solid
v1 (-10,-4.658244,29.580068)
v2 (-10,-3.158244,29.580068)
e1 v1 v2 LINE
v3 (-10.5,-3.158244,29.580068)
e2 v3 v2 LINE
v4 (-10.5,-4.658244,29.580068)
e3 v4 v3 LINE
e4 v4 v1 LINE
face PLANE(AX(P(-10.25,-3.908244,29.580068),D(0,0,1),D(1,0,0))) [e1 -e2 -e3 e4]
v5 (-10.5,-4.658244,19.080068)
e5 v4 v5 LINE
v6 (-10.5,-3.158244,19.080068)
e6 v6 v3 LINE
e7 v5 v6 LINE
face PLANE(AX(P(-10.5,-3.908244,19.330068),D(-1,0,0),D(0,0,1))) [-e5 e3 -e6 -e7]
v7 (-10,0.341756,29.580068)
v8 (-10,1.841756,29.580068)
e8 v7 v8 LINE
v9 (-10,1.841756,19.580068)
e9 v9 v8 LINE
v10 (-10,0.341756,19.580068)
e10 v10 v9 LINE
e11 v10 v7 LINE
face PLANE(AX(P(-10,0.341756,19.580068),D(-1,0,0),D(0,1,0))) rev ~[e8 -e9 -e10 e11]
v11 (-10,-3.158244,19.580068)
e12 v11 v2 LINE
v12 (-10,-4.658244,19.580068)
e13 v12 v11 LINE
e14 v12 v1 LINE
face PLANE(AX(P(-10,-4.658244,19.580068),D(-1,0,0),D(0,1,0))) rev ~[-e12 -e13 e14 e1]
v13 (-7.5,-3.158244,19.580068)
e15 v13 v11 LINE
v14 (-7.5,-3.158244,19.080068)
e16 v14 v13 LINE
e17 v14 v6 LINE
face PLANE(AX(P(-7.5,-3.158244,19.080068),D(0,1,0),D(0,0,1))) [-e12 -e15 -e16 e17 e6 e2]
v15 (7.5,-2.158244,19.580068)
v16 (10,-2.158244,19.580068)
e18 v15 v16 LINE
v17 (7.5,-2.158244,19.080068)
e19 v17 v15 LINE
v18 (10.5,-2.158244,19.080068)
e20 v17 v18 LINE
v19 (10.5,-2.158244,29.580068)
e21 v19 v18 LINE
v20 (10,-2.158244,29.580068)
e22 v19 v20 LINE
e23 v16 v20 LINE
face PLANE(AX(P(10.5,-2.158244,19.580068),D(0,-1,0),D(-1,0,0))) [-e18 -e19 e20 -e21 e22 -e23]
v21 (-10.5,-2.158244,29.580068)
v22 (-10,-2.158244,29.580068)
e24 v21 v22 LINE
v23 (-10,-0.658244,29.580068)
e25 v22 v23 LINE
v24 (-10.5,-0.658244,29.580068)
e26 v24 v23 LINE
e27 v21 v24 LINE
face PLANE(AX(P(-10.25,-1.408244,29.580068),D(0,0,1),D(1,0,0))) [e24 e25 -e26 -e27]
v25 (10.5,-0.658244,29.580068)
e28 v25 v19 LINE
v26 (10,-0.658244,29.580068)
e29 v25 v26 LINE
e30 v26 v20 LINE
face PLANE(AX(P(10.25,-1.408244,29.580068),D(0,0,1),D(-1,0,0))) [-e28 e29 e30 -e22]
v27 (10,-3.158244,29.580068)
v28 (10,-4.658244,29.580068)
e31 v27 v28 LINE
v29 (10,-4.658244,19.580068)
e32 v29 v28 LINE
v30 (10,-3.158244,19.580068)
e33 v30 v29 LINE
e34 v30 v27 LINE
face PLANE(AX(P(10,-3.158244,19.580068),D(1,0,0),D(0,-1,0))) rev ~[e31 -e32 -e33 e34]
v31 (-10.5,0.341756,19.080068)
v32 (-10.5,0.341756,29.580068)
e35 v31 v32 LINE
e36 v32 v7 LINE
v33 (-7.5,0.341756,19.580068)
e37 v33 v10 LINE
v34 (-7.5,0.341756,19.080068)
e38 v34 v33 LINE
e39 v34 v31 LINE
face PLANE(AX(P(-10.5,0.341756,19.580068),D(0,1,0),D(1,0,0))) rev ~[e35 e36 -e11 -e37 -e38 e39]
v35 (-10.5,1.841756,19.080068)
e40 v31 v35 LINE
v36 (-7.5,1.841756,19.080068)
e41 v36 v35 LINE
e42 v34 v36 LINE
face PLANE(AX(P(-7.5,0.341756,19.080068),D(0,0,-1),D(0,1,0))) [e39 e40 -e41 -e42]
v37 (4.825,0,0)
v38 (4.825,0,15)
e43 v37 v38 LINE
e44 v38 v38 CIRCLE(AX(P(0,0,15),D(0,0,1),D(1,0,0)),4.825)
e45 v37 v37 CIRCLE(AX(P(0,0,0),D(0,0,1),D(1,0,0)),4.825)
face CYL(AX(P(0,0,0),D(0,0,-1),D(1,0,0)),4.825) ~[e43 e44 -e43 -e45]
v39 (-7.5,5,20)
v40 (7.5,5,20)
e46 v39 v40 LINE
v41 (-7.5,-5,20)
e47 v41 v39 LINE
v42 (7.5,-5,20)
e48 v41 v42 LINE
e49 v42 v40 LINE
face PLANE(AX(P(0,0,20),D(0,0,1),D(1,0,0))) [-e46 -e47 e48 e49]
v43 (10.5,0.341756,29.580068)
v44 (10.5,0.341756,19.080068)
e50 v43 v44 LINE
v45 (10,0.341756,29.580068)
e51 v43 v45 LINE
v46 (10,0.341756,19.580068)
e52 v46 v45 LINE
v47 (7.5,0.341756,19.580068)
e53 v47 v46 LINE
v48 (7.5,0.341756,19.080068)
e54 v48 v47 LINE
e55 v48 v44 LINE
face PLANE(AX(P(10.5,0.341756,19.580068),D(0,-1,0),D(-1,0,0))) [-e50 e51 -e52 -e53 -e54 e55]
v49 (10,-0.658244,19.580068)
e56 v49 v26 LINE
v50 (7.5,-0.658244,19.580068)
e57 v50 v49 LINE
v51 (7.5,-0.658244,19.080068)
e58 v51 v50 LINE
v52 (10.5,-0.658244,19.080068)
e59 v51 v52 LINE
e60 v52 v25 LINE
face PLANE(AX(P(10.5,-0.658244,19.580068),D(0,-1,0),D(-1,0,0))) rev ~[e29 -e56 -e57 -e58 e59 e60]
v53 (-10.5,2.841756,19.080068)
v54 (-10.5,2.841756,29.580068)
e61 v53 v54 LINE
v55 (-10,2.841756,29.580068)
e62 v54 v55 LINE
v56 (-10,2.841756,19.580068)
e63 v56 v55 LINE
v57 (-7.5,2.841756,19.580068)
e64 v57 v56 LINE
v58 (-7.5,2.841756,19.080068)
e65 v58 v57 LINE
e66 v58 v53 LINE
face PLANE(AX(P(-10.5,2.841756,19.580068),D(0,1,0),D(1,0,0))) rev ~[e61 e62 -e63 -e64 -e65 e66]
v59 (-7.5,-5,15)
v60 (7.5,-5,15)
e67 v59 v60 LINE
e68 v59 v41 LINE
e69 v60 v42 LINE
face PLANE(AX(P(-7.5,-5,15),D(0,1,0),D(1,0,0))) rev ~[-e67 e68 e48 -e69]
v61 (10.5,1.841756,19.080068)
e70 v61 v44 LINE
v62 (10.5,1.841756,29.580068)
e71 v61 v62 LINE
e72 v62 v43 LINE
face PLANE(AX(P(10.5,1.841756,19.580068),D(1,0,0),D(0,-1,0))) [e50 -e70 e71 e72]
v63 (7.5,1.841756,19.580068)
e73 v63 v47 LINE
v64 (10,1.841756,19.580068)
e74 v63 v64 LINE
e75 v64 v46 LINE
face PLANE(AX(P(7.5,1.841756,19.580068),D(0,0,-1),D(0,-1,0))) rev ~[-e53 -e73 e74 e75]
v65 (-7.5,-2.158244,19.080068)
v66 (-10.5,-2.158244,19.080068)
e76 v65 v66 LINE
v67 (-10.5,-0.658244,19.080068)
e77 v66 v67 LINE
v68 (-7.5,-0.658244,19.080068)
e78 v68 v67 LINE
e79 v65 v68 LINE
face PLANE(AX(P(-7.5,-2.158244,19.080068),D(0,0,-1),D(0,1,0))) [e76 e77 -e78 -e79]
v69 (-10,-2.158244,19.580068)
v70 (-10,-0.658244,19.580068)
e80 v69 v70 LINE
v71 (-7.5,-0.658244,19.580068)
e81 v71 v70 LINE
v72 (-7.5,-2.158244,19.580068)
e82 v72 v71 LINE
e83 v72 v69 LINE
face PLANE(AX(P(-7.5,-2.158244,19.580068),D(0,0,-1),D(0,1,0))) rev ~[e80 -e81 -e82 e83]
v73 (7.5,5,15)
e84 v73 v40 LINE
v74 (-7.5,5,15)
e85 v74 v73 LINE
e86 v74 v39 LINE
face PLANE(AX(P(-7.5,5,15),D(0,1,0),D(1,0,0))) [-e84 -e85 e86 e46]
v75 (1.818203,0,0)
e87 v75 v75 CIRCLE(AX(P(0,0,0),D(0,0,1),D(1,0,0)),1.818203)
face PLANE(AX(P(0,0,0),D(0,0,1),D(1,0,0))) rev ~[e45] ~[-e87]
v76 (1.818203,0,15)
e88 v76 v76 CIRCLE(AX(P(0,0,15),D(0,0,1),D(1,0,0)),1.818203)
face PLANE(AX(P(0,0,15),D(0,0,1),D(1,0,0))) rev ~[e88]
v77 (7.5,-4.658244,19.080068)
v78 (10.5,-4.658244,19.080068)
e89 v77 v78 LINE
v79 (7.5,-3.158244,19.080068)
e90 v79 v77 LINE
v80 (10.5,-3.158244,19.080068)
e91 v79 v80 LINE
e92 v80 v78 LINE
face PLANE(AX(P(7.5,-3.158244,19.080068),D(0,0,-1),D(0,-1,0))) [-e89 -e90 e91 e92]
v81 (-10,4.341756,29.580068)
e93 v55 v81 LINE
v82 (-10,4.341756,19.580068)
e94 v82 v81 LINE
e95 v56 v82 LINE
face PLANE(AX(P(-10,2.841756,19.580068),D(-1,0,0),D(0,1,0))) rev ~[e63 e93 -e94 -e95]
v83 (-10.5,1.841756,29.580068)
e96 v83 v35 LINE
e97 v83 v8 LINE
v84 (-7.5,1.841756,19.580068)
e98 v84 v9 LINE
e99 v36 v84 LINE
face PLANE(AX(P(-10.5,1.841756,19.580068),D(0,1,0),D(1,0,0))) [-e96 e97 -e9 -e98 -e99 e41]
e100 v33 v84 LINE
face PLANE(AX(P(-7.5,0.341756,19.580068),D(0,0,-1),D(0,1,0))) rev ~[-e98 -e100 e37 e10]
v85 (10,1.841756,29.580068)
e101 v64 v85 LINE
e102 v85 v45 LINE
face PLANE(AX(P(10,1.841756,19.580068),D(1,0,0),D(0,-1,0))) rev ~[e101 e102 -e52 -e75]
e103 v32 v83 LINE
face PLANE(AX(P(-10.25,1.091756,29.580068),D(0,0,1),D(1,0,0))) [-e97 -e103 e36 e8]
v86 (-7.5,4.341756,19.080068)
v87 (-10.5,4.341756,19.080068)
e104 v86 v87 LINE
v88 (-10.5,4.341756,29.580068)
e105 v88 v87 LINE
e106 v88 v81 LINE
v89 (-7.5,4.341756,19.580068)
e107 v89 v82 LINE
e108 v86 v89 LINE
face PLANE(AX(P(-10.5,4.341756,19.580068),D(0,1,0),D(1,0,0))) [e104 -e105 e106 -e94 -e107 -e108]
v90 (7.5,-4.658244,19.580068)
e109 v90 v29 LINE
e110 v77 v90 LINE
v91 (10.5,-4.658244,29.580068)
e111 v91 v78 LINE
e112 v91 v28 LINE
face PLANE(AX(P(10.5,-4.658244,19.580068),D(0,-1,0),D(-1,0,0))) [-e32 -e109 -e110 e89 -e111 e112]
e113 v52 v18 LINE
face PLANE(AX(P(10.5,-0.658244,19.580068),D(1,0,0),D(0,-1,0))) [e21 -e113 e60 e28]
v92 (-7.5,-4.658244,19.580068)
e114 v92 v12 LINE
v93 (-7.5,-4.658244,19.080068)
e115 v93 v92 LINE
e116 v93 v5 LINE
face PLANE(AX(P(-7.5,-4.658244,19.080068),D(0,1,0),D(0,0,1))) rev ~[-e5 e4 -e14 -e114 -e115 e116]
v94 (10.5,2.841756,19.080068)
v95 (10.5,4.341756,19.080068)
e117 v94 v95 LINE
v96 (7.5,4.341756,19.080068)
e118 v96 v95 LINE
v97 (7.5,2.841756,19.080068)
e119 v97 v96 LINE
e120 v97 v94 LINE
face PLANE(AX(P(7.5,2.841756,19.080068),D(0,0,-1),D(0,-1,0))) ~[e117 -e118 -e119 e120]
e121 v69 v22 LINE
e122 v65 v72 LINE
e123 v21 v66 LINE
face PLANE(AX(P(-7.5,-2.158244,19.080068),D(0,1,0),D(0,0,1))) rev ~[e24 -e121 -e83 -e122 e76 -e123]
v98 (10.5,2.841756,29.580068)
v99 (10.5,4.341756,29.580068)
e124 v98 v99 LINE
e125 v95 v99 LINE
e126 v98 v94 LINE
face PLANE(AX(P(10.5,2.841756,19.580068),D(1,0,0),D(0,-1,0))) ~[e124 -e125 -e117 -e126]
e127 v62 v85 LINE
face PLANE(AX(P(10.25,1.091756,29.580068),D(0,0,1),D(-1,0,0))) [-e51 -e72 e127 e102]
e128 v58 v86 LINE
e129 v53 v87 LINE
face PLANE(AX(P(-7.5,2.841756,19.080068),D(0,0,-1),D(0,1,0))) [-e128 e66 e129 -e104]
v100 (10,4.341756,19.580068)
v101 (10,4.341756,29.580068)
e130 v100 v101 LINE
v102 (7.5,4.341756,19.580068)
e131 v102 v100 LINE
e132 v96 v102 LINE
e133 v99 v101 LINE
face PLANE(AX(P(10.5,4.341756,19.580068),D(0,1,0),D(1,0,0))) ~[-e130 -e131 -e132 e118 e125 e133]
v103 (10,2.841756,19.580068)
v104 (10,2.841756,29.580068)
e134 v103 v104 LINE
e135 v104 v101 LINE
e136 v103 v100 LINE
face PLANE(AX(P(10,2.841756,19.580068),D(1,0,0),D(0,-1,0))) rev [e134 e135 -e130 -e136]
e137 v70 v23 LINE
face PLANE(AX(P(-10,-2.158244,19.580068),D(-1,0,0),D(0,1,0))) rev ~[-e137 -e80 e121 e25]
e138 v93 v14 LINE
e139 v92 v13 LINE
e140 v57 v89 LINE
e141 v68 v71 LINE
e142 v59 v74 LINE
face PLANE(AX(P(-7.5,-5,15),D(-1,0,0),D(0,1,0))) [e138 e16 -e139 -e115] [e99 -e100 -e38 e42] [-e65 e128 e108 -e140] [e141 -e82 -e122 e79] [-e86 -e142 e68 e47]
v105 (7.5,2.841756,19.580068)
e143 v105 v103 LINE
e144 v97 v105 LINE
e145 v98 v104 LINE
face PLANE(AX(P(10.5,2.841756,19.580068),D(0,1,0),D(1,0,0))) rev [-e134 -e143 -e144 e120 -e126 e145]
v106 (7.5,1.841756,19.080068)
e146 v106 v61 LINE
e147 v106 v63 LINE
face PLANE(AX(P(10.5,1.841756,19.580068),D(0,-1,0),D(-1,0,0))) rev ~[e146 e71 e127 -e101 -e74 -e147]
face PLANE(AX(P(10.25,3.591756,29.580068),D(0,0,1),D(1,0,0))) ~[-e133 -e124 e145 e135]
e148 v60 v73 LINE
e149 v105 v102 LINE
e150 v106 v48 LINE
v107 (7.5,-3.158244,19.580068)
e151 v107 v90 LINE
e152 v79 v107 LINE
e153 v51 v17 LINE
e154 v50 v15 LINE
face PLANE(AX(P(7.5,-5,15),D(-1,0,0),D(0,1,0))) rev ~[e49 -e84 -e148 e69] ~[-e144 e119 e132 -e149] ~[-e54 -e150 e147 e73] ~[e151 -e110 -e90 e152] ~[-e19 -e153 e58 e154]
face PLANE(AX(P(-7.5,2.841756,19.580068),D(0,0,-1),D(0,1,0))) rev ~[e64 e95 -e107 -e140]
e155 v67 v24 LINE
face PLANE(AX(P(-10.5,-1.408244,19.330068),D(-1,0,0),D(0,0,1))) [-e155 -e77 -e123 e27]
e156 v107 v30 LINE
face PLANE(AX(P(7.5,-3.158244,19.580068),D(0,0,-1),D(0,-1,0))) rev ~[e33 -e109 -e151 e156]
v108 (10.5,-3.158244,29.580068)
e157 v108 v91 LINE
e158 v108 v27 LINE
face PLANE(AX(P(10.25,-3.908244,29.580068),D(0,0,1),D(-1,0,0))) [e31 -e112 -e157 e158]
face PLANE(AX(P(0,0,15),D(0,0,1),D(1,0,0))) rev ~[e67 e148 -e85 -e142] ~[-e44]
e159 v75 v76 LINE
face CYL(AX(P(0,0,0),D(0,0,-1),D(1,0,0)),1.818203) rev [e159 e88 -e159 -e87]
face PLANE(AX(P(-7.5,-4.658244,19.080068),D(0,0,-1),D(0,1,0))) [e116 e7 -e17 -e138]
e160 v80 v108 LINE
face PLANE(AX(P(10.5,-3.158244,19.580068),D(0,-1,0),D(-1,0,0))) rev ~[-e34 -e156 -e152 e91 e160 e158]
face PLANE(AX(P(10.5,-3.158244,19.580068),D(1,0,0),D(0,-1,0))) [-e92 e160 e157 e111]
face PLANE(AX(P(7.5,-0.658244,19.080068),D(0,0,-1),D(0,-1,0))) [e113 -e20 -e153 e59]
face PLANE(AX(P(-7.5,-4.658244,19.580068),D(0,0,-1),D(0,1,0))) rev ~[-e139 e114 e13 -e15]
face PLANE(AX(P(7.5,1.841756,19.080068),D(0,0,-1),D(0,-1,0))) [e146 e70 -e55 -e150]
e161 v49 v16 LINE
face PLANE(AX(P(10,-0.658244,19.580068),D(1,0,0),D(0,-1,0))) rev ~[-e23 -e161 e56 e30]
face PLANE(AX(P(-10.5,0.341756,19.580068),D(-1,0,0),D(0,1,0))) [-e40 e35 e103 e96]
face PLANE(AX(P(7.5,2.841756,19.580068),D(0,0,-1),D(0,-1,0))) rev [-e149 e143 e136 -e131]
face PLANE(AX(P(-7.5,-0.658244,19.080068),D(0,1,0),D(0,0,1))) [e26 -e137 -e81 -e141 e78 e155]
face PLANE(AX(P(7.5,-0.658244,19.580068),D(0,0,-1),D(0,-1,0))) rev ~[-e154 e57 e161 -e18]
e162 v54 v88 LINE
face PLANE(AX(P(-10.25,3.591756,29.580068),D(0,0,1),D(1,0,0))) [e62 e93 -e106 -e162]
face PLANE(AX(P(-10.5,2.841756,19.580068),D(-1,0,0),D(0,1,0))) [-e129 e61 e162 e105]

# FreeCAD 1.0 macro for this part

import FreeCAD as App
import Part
import Sketcher
from FreeCAD import Vector


def add_polygon(sketch, points):
    """Adds a closed chain of lines whose ends are joined by coincident constraints."""
    first, n = sketch.GeometryCount, len(points)
    for a, b in zip(points, points[1:] + points[:1]):
        sketch.addGeometry(Part.LineSegment(App.Vector(*a, 0), App.Vector(*b, 0)), False)
    for i in range(n):
        sketch.addConstraint(Sketcher.Constraint("Coincident", first + i, 2, first + (i + 1) % n, 1))

doc = App.newDocument("Part")
body = doc.addObject("PartDesign::Body", "Body")

# Sketch on XY plane
sketch1 = body.newObject("Sketcher::SketchObject", "Sketch")
sketch1.AttachmentSupport = (doc.getObject("XY_Plane"), [""])
sketch1.MapMode = "FlatFace"
sketch1.addGeometry(Part.Circle(Vector(0, 0, 0), Vector(0, 0, 1), 4.8), False)
sketch1.addGeometry(Part.Circle(Vector(0, 0, 0), Vector(0, 0, 1), 1.8), False)
sketch1.addConstraint(Sketcher.Constraint("Coincident", 0, 3, -1, 1))
sketch1.addConstraint(Sketcher.Constraint("Coincident", 1, 3, -1, 1))
sketch1.addConstraint(Sketcher.Constraint("Diameter", 0, 9.65))
sketch1.addConstraint(Sketcher.Constraint("Diameter", 1, 3.636405))
pad1 = body.newObject("PartDesign::Pad", "Pad")
pad1.Profile = sketch1
pad1.Length = 15

# Sketch on XY plane
sketch2 = body.newObject("Sketcher::SketchObject", "Sketch001")
sketch2.AttachmentSupport = (doc.getObject("XY_Plane"), [""])
sketch2.MapMode = "FlatFace"
sketch2.AttachmentOffset = App.Placement(Vector(0, 0, 15), App.Rotation())
add_polygon(sketch2, [(-8, 5), (-8, -5), (8, -5), (8, 5)])  # lines 0-3
sketch2.addConstraint(Sketcher.Constraint("Vertical", 0))
sketch2.addConstraint(Sketcher.Constraint("Horizontal", 1))
sketch2.addConstraint(Sketcher.Constraint("Vertical", 2))
sketch2.addConstraint(Sketcher.Constraint("Horizontal", 3))
sketch2.addConstraint(Sketcher.Constraint("Symmetric", 0, 2, 2, 2, -1, 1))
sketch2.addConstraint(Sketcher.Constraint("DistanceX", 1, 1, 1, 2, 15.0))
sketch2.addConstraint(Sketcher.Constraint("DistanceY", 0, 2, 0, 1, 10.0))
pad2 = body.newObject("PartDesign::Pad", "Pad001")
pad2.Profile = sketch2
pad2.Length = 5

# Sketch on YZ plane
sketch3 = body.newObject("Sketcher::SketchObject", "Sketch002")
sketch3.AttachmentSupport = (doc.getObject("YZ_Plane"), [""])
sketch3.MapMode = "FlatFace"
sketch3.AttachmentOffset = App.Placement(Vector(0, 0, -7.5), App.Rotation())
add_polygon(sketch3, [(4.3, 19.1), (2.8, 19.1), (2.8, 19.6), (4.3, 19.6)])  # lines 0-3
sketch3.addConstraint(Sketcher.Constraint("Horizontal", 0))
sketch3.addConstraint(Sketcher.Constraint("Vertical", 1))
sketch3.addConstraint(Sketcher.Constraint("Horizontal", 2))
sketch3.addConstraint(Sketcher.Constraint("Vertical", 3))
sketch3.addConstraint(Sketcher.Constraint("DistanceX", 0, 2, 0, 1, 1.5))
sketch3.addConstraint(Sketcher.Constraint("DistanceY", 1, 1, 1, 2, 0.5))
sketch3.addConstraint(Sketcher.Constraint("DistanceX", -1, 1, 0, 2, 2.841756))
sketch3.addConstraint(Sketcher.Constraint("DistanceY", -1, 1, 0, 2, 19.080068))
pad3 = body.newObject("PartDesign::Pad", "Pad002")
pad3.Profile = sketch3
pad3.Length = 3
pad3.Reversed = True

# Sketch on XY plane
sketch4 = body.newObject("Sketcher::SketchObject", "Sketch003")
sketch4.AttachmentSupport = (doc.getObject("XY_Plane"), [""])
sketch4.MapMode = "FlatFace"
sketch4.AttachmentOffset = App.Placement(Vector(0, 0, 19.580068), App.Rotation())
add_polygon(sketch4, [(-10.5, 4.3), (-10.5, 2.8), (-10, 2.8), (-10, 4.3)])  # lines 0-3
sketch4.addConstraint(Sketcher.Constraint("Vertical", 0))
sketch4.addConstraint(Sketcher.Constraint("Horizontal", 1))
sketch4.addConstraint(Sketcher.Constraint("Vertical", 2))
sketch4.addConstraint(Sketcher.Constraint("Horizontal", 3))
sketch4.addConstraint(Sketcher.Constraint("DistanceX", 1, 1, 1, 2, 0.5))
sketch4.addConstraint(Sketcher.Constraint("DistanceY", 0, 2, 0, 1, 1.5))
sketch4.addConstraint(Sketcher.Constraint("DistanceX", 1, 2, -1, 1, 10.0))
sketch4.addConstraint(Sketcher.Constraint("DistanceY", -1, 1, 0, 2, 2.841756))
pad4 = body.newObject("PartDesign::Pad", "Pad003")
pad4.Profile = sketch4
pad4.Length = 10
doc.recompute()

linearpattern = body.newObject("PartDesign::LinearPattern", "LinearPattern")
linearpattern.Originals = [pad3, pad4]
linearpattern.Direction = (doc.getObject("Y_Axis"), [""])
linearpattern.Mode = "offset"
linearpattern.Offset = 2.5
linearpattern.Occurrences = 4
linearpattern.Reversed = True
body.Tip = linearpattern
doc.recompute()

mirrored = body.newObject("PartDesign::Mirrored", "Mirrored")
mirrored.Originals = [pad3, pad4]
mirrored.MirrorPlane = (doc.getObject("YZ_Plane"), [""])
body.Tip = mirrored

# Sketch on YZ plane
sketch5 = body.newObject("Sketcher::SketchObject", "Sketch004")
sketch5.AttachmentSupport = (doc.getObject("YZ_Plane"), [""])
sketch5.MapMode = "FlatFace"
sketch5.AttachmentOffset = App.Placement(Vector(0, 0, 7.5), App.Rotation())
add_polygon(sketch5, [(0.3, 19.1), (1.8, 19.1), (1.8, 19.6), (0.3, 19.6)])  # lines 0-3
sketch5.addConstraint(Sketcher.Constraint("Horizontal", 0))
sketch5.addConstraint(Sketcher.Constraint("Vertical", 1))
sketch5.addConstraint(Sketcher.Constraint("Horizontal", 2))
sketch5.addConstraint(Sketcher.Constraint("Vertical", 3))
sketch5.addConstraint(Sketcher.Constraint("DistanceX", 0, 1, 0, 2, 1.5))
sketch5.addConstraint(Sketcher.Constraint("DistanceY", 1, 1, 1, 2, 0.5))
sketch5.addConstraint(Sketcher.Constraint("DistanceX", -1, 1, 0, 2, 1.841756))
sketch5.addConstraint(Sketcher.Constraint("DistanceY", -1, 1, 0, 2, 19.080068))
pad5 = body.newObject("PartDesign::Pad", "Pad004")
pad5.Profile = sketch5
pad5.Length = 3

# Sketch on YZ plane
sketch6 = body.newObject("Sketcher::SketchObject", "Sketch005")
sketch6.AttachmentSupport = (doc.getObject("YZ_Plane"), [""])
sketch6.MapMode = "FlatFace"
sketch6.AttachmentOffset = App.Placement(Vector(0, 0, 7.5), App.Rotation())
add_polygon(sketch6, [(-2.2, 19.1), (-0.7, 19.1), (-0.7, 19.6), (-2.2, 19.6)])  # lines 0-3
sketch6.addConstraint(Sketcher.Constraint("Horizontal", 0))
sketch6.addConstraint(Sketcher.Constraint("Vertical", 1))
sketch6.addConstraint(Sketcher.Constraint("Horizontal", 2))
sketch6.addConstraint(Sketcher.Constraint("Vertical", 3))
sketch6.addConstraint(Sketcher.Constraint("DistanceX", 0, 1, 0, 2, 1.5))
sketch6.addConstraint(Sketcher.Constraint("DistanceY", 1, 1, 1, 2, 0.5))
sketch6.addConstraint(Sketcher.Constraint("DistanceX", 0, 2, -1, 1, 0.658244))
sketch6.addConstraint(Sketcher.Constraint("DistanceY", -1, 1, 0, 2, 19.080068))
pad6 = body.newObject("PartDesign::Pad", "Pad005")
pad6.Profile = sketch6
pad6.Length = 3

# Sketch on YZ plane
sketch7 = body.newObject("Sketcher::SketchObject", "Sketch006")
sketch7.AttachmentSupport = (doc.getObject("YZ_Plane"), [""])
sketch7.MapMode = "FlatFace"
sketch7.AttachmentOffset = App.Placement(Vector(0, 0, 7.5), App.Rotation())
add_polygon(sketch7, [(-4.7, 19.1), (-3.2, 19.1), (-3.2, 19.6), (-4.7, 19.6)])  # lines 0-3
sketch7.addConstraint(Sketcher.Constraint("Horizontal", 0))
sketch7.addConstraint(Sketcher.Constraint("Vertical", 1))
sketch7.addConstraint(Sketcher.Constraint("Horizontal", 2))
sketch7.addConstraint(Sketcher.Constraint("Vertical", 3))
sketch7.addConstraint(Sketcher.Constraint("DistanceX", 0, 1, 0, 2, 1.5))
sketch7.addConstraint(Sketcher.Constraint("DistanceY", 1, 1, 1, 2, 0.5))
sketch7.addConstraint(Sketcher.Constraint("DistanceX", 0, 2, -1, 1, 3.158244))
sketch7.addConstraint(Sketcher.Constraint("DistanceY", -1, 1, 0, 2, 19.080068))
pad7 = body.newObject("PartDesign::Pad", "Pad006")
pad7.Profile = sketch7
pad7.Length = 3

# Sketch on XY plane
sketch8 = body.newObject("Sketcher::SketchObject", "Sketch007")
sketch8.AttachmentSupport = (doc.getObject("XY_Plane"), [""])
sketch8.MapMode = "FlatFace"
sketch8.AttachmentOffset = App.Placement(Vector(0, 0, 19.580068), App.Rotation())
add_polygon(sketch8, [(10.5, 0.3), (10.5, 1.8), (10, 1.8), (10, 0.3)])  # lines 0-3
sketch8.addConstraint(Sketcher.Constraint("Vertical", 0))
sketch8.addConstraint(Sketcher.Constraint("Horizontal", 1))
sketch8.addConstraint(Sketcher.Constraint("Vertical", 2))
sketch8.addConstraint(Sketcher.Constraint("Horizontal", 3))
sketch8.addConstraint(Sketcher.Constraint("DistanceX", 1, 2, 1, 1, 0.5))
sketch8.addConstraint(Sketcher.Constraint("DistanceY", 0, 1, 0, 2, 1.5))
sketch8.addConstraint(Sketcher.Constraint("DistanceX", -1, 1, 1, 2, 10.0))
sketch8.addConstraint(Sketcher.Constraint("DistanceY", -1, 1, 0, 2, 1.841756))
pad8 = body.newObject("PartDesign::Pad", "Pad007")
pad8.Profile = sketch8
pad8.Length = 10

# Sketch on XY plane
sketch9 = body.newObject("Sketcher::SketchObject", "Sketch008")
sketch9.AttachmentSupport = (doc.getObject("XY_Plane"), [""])
sketch9.MapMode = "FlatFace"
sketch9.AttachmentOffset = App.Placement(Vector(0, 0, 19.580068), App.Rotation())
add_polygon(sketch9, [(10.5, -2.2), (10.5, -0.7), (10, -0.7), (10, -2.2)])  # lines 0-3
sketch9.addConstraint(Sketcher.Constraint("Vertical", 0))
sketch9.addConstraint(Sketcher.Constraint("Horizontal", 1))
sketch9.addConstraint(Sketcher.Constraint("Vertical", 2))
sketch9.addConstraint(Sketcher.Constraint("Horizontal", 3))
sketch9.addConstraint(Sketcher.Constraint("DistanceX", 1, 2, 1, 1, 0.5))
sketch9.addConstraint(Sketcher.Constraint("DistanceY", 0, 1, 0, 2, 1.5))
sketch9.addConstraint(Sketcher.Constraint("DistanceX", -1, 1, 1, 2, 10.0))
sketch9.addConstraint(Sketcher.Constraint("DistanceY", 0, 2, -1, 1, 0.658244))
pad9 = body.newObject("PartDesign::Pad", "Pad008")
pad9.Profile = sketch9
pad9.Length = 10

# Sketch on XY plane
sketch10 = body.newObject("Sketcher::SketchObject", "Sketch009")
sketch10.AttachmentSupport = (doc.getObject("XY_Plane"), [""])
sketch10.MapMode = "FlatFace"
sketch10.AttachmentOffset = App.Placement(Vector(0, 0, 19.580068), App.Rotation())
add_polygon(sketch10, [(10.5, -4.7), (10.5, -3.2), (10, -3.2), (10, -4.7)])  # lines 0-3
sketch10.addConstraint(Sketcher.Constraint("Vertical", 0))
sketch10.addConstraint(Sketcher.Constraint("Horizontal", 1))
sketch10.addConstraint(Sketcher.Constraint("Vertical", 2))
sketch10.addConstraint(Sketcher.Constraint("Horizontal", 3))
sketch10.addConstraint(Sketcher.Constraint("DistanceX", 1, 2, 1, 1, 0.5))
sketch10.addConstraint(Sketcher.Constraint("DistanceY", 0, 1, 0, 2, 1.5))
sketch10.addConstraint(Sketcher.Constraint("DistanceX", -1, 1, 1, 2, 10.0))
sketch10.addConstraint(Sketcher.Constraint("DistanceY", 0, 2, -1, 1, 3.158244))
pad10 = body.newObject("PartDesign::Pad", "Pad009")
pad10.Profile = sketch10
pad10.Length = 10

doc.recompute()
